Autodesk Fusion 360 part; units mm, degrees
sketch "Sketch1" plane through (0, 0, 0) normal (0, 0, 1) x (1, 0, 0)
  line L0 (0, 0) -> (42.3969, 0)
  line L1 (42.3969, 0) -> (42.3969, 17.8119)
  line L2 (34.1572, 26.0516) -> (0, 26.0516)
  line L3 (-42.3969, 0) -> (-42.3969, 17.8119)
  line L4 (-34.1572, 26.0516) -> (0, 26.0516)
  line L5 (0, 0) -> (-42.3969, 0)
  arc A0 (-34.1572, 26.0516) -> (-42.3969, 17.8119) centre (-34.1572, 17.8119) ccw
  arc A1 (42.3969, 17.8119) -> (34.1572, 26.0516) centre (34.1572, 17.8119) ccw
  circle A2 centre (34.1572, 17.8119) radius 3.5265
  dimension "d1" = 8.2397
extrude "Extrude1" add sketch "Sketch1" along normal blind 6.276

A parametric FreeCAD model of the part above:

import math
import FreeCAD as App
import Part
import Sketcher

doc = App.newDocument("Part")
params = doc.addObject("Spreadsheet::Sheet", "Params")
for row, (alias, value) in enumerate([
    ("pad1_length", "6.276 mm"),
], start=1):
    params.set(f"A{row}", alias)
    params.set(f"B{row}", "=" + value)
    params.setAlias(f"B{row}", alias)

body = doc.addObject("PartDesign::Body", "Body")

# Sketch on XY plane
sketch1 = doc.addObject("Sketcher::SketchObject", "Sketch")
body.addObject(sketch1)
sketch1.AttachmentSupport = (doc.XY_Plane, [""])
sketch1.MapMode = "FlatFace"
sketch1.addGeometry([
    Part.LineSegment(App.Vector(-42.3969, 0, 0), App.Vector(42.3969, 0, 0)),  # 0
    Part.LineSegment(App.Vector(42.3969, 0, 0), App.Vector(42.3969, 17.8119, 0)),  # 1
    Part.ArcOfCircle(Part.Circle(App.Vector(34.1572, 17.8119, 0), App.Vector(0, 0, 1), 8.2397), math.radians(0), math.radians(90)),  # 2
    Part.LineSegment(App.Vector(34.1572, 26.0516, 0), App.Vector(-34.1572, 26.0516, 0)),  # 3
    Part.ArcOfCircle(Part.Circle(App.Vector(-34.1572, 17.8119, 0), App.Vector(0, 0, 1), 8.2397), math.radians(90), math.radians(180)),  # 4
    Part.LineSegment(App.Vector(-42.3969, 17.8119, 0), App.Vector(-42.3969, 0, 0)),  # 5
    Part.Circle(App.Vector(34.1572, 17.8119, 0), App.Vector(0, 0, 1), 3.5265),  # 6
], False)
sketch1.addConstraint([
    Sketcher.Constraint("Coincident", 0, 2, 1, 1),
    Sketcher.Constraint("Tangent", 1, 2, 2, 1),
    Sketcher.Constraint("Tangent", 2, 2, 3, 1),
    Sketcher.Constraint("Tangent", 3, 2, 4, 1),
    Sketcher.Constraint("Tangent", 4, 2, 5, 1),
    Sketcher.Constraint("Coincident", 5, 2, 0, 1),
    Sketcher.Constraint("Horizontal", 0),
    Sketcher.Constraint("Vertical", 1),
    Sketcher.Constraint("Horizontal", 3),
    Sketcher.Constraint("Vertical", 5),
    Sketcher.Constraint("Coincident", 6, 3, 2, 3),
    Sketcher.Constraint("Equal", 2, 4),
    Sketcher.Constraint("Symmetric", 0, 2, 5, 2, -1, 1),
    Sketcher.Constraint("Radius", 2, 8.2397),
    Sketcher.Constraint("Diameter", 6, 7.053),
    Sketcher.Constraint("DistanceY", 1, 1, 1, 2, 17.812),
    Sketcher.Constraint("DistanceX", 0, 1, 0, 2, 84.7938),
])
pad1 = doc.addObject("PartDesign::Pad", "Pad")
body.addObject(pad1)
pad1.Profile = sketch1
pad1.setExpression("Length", "Params.pad1_length")

doc.recompute()
